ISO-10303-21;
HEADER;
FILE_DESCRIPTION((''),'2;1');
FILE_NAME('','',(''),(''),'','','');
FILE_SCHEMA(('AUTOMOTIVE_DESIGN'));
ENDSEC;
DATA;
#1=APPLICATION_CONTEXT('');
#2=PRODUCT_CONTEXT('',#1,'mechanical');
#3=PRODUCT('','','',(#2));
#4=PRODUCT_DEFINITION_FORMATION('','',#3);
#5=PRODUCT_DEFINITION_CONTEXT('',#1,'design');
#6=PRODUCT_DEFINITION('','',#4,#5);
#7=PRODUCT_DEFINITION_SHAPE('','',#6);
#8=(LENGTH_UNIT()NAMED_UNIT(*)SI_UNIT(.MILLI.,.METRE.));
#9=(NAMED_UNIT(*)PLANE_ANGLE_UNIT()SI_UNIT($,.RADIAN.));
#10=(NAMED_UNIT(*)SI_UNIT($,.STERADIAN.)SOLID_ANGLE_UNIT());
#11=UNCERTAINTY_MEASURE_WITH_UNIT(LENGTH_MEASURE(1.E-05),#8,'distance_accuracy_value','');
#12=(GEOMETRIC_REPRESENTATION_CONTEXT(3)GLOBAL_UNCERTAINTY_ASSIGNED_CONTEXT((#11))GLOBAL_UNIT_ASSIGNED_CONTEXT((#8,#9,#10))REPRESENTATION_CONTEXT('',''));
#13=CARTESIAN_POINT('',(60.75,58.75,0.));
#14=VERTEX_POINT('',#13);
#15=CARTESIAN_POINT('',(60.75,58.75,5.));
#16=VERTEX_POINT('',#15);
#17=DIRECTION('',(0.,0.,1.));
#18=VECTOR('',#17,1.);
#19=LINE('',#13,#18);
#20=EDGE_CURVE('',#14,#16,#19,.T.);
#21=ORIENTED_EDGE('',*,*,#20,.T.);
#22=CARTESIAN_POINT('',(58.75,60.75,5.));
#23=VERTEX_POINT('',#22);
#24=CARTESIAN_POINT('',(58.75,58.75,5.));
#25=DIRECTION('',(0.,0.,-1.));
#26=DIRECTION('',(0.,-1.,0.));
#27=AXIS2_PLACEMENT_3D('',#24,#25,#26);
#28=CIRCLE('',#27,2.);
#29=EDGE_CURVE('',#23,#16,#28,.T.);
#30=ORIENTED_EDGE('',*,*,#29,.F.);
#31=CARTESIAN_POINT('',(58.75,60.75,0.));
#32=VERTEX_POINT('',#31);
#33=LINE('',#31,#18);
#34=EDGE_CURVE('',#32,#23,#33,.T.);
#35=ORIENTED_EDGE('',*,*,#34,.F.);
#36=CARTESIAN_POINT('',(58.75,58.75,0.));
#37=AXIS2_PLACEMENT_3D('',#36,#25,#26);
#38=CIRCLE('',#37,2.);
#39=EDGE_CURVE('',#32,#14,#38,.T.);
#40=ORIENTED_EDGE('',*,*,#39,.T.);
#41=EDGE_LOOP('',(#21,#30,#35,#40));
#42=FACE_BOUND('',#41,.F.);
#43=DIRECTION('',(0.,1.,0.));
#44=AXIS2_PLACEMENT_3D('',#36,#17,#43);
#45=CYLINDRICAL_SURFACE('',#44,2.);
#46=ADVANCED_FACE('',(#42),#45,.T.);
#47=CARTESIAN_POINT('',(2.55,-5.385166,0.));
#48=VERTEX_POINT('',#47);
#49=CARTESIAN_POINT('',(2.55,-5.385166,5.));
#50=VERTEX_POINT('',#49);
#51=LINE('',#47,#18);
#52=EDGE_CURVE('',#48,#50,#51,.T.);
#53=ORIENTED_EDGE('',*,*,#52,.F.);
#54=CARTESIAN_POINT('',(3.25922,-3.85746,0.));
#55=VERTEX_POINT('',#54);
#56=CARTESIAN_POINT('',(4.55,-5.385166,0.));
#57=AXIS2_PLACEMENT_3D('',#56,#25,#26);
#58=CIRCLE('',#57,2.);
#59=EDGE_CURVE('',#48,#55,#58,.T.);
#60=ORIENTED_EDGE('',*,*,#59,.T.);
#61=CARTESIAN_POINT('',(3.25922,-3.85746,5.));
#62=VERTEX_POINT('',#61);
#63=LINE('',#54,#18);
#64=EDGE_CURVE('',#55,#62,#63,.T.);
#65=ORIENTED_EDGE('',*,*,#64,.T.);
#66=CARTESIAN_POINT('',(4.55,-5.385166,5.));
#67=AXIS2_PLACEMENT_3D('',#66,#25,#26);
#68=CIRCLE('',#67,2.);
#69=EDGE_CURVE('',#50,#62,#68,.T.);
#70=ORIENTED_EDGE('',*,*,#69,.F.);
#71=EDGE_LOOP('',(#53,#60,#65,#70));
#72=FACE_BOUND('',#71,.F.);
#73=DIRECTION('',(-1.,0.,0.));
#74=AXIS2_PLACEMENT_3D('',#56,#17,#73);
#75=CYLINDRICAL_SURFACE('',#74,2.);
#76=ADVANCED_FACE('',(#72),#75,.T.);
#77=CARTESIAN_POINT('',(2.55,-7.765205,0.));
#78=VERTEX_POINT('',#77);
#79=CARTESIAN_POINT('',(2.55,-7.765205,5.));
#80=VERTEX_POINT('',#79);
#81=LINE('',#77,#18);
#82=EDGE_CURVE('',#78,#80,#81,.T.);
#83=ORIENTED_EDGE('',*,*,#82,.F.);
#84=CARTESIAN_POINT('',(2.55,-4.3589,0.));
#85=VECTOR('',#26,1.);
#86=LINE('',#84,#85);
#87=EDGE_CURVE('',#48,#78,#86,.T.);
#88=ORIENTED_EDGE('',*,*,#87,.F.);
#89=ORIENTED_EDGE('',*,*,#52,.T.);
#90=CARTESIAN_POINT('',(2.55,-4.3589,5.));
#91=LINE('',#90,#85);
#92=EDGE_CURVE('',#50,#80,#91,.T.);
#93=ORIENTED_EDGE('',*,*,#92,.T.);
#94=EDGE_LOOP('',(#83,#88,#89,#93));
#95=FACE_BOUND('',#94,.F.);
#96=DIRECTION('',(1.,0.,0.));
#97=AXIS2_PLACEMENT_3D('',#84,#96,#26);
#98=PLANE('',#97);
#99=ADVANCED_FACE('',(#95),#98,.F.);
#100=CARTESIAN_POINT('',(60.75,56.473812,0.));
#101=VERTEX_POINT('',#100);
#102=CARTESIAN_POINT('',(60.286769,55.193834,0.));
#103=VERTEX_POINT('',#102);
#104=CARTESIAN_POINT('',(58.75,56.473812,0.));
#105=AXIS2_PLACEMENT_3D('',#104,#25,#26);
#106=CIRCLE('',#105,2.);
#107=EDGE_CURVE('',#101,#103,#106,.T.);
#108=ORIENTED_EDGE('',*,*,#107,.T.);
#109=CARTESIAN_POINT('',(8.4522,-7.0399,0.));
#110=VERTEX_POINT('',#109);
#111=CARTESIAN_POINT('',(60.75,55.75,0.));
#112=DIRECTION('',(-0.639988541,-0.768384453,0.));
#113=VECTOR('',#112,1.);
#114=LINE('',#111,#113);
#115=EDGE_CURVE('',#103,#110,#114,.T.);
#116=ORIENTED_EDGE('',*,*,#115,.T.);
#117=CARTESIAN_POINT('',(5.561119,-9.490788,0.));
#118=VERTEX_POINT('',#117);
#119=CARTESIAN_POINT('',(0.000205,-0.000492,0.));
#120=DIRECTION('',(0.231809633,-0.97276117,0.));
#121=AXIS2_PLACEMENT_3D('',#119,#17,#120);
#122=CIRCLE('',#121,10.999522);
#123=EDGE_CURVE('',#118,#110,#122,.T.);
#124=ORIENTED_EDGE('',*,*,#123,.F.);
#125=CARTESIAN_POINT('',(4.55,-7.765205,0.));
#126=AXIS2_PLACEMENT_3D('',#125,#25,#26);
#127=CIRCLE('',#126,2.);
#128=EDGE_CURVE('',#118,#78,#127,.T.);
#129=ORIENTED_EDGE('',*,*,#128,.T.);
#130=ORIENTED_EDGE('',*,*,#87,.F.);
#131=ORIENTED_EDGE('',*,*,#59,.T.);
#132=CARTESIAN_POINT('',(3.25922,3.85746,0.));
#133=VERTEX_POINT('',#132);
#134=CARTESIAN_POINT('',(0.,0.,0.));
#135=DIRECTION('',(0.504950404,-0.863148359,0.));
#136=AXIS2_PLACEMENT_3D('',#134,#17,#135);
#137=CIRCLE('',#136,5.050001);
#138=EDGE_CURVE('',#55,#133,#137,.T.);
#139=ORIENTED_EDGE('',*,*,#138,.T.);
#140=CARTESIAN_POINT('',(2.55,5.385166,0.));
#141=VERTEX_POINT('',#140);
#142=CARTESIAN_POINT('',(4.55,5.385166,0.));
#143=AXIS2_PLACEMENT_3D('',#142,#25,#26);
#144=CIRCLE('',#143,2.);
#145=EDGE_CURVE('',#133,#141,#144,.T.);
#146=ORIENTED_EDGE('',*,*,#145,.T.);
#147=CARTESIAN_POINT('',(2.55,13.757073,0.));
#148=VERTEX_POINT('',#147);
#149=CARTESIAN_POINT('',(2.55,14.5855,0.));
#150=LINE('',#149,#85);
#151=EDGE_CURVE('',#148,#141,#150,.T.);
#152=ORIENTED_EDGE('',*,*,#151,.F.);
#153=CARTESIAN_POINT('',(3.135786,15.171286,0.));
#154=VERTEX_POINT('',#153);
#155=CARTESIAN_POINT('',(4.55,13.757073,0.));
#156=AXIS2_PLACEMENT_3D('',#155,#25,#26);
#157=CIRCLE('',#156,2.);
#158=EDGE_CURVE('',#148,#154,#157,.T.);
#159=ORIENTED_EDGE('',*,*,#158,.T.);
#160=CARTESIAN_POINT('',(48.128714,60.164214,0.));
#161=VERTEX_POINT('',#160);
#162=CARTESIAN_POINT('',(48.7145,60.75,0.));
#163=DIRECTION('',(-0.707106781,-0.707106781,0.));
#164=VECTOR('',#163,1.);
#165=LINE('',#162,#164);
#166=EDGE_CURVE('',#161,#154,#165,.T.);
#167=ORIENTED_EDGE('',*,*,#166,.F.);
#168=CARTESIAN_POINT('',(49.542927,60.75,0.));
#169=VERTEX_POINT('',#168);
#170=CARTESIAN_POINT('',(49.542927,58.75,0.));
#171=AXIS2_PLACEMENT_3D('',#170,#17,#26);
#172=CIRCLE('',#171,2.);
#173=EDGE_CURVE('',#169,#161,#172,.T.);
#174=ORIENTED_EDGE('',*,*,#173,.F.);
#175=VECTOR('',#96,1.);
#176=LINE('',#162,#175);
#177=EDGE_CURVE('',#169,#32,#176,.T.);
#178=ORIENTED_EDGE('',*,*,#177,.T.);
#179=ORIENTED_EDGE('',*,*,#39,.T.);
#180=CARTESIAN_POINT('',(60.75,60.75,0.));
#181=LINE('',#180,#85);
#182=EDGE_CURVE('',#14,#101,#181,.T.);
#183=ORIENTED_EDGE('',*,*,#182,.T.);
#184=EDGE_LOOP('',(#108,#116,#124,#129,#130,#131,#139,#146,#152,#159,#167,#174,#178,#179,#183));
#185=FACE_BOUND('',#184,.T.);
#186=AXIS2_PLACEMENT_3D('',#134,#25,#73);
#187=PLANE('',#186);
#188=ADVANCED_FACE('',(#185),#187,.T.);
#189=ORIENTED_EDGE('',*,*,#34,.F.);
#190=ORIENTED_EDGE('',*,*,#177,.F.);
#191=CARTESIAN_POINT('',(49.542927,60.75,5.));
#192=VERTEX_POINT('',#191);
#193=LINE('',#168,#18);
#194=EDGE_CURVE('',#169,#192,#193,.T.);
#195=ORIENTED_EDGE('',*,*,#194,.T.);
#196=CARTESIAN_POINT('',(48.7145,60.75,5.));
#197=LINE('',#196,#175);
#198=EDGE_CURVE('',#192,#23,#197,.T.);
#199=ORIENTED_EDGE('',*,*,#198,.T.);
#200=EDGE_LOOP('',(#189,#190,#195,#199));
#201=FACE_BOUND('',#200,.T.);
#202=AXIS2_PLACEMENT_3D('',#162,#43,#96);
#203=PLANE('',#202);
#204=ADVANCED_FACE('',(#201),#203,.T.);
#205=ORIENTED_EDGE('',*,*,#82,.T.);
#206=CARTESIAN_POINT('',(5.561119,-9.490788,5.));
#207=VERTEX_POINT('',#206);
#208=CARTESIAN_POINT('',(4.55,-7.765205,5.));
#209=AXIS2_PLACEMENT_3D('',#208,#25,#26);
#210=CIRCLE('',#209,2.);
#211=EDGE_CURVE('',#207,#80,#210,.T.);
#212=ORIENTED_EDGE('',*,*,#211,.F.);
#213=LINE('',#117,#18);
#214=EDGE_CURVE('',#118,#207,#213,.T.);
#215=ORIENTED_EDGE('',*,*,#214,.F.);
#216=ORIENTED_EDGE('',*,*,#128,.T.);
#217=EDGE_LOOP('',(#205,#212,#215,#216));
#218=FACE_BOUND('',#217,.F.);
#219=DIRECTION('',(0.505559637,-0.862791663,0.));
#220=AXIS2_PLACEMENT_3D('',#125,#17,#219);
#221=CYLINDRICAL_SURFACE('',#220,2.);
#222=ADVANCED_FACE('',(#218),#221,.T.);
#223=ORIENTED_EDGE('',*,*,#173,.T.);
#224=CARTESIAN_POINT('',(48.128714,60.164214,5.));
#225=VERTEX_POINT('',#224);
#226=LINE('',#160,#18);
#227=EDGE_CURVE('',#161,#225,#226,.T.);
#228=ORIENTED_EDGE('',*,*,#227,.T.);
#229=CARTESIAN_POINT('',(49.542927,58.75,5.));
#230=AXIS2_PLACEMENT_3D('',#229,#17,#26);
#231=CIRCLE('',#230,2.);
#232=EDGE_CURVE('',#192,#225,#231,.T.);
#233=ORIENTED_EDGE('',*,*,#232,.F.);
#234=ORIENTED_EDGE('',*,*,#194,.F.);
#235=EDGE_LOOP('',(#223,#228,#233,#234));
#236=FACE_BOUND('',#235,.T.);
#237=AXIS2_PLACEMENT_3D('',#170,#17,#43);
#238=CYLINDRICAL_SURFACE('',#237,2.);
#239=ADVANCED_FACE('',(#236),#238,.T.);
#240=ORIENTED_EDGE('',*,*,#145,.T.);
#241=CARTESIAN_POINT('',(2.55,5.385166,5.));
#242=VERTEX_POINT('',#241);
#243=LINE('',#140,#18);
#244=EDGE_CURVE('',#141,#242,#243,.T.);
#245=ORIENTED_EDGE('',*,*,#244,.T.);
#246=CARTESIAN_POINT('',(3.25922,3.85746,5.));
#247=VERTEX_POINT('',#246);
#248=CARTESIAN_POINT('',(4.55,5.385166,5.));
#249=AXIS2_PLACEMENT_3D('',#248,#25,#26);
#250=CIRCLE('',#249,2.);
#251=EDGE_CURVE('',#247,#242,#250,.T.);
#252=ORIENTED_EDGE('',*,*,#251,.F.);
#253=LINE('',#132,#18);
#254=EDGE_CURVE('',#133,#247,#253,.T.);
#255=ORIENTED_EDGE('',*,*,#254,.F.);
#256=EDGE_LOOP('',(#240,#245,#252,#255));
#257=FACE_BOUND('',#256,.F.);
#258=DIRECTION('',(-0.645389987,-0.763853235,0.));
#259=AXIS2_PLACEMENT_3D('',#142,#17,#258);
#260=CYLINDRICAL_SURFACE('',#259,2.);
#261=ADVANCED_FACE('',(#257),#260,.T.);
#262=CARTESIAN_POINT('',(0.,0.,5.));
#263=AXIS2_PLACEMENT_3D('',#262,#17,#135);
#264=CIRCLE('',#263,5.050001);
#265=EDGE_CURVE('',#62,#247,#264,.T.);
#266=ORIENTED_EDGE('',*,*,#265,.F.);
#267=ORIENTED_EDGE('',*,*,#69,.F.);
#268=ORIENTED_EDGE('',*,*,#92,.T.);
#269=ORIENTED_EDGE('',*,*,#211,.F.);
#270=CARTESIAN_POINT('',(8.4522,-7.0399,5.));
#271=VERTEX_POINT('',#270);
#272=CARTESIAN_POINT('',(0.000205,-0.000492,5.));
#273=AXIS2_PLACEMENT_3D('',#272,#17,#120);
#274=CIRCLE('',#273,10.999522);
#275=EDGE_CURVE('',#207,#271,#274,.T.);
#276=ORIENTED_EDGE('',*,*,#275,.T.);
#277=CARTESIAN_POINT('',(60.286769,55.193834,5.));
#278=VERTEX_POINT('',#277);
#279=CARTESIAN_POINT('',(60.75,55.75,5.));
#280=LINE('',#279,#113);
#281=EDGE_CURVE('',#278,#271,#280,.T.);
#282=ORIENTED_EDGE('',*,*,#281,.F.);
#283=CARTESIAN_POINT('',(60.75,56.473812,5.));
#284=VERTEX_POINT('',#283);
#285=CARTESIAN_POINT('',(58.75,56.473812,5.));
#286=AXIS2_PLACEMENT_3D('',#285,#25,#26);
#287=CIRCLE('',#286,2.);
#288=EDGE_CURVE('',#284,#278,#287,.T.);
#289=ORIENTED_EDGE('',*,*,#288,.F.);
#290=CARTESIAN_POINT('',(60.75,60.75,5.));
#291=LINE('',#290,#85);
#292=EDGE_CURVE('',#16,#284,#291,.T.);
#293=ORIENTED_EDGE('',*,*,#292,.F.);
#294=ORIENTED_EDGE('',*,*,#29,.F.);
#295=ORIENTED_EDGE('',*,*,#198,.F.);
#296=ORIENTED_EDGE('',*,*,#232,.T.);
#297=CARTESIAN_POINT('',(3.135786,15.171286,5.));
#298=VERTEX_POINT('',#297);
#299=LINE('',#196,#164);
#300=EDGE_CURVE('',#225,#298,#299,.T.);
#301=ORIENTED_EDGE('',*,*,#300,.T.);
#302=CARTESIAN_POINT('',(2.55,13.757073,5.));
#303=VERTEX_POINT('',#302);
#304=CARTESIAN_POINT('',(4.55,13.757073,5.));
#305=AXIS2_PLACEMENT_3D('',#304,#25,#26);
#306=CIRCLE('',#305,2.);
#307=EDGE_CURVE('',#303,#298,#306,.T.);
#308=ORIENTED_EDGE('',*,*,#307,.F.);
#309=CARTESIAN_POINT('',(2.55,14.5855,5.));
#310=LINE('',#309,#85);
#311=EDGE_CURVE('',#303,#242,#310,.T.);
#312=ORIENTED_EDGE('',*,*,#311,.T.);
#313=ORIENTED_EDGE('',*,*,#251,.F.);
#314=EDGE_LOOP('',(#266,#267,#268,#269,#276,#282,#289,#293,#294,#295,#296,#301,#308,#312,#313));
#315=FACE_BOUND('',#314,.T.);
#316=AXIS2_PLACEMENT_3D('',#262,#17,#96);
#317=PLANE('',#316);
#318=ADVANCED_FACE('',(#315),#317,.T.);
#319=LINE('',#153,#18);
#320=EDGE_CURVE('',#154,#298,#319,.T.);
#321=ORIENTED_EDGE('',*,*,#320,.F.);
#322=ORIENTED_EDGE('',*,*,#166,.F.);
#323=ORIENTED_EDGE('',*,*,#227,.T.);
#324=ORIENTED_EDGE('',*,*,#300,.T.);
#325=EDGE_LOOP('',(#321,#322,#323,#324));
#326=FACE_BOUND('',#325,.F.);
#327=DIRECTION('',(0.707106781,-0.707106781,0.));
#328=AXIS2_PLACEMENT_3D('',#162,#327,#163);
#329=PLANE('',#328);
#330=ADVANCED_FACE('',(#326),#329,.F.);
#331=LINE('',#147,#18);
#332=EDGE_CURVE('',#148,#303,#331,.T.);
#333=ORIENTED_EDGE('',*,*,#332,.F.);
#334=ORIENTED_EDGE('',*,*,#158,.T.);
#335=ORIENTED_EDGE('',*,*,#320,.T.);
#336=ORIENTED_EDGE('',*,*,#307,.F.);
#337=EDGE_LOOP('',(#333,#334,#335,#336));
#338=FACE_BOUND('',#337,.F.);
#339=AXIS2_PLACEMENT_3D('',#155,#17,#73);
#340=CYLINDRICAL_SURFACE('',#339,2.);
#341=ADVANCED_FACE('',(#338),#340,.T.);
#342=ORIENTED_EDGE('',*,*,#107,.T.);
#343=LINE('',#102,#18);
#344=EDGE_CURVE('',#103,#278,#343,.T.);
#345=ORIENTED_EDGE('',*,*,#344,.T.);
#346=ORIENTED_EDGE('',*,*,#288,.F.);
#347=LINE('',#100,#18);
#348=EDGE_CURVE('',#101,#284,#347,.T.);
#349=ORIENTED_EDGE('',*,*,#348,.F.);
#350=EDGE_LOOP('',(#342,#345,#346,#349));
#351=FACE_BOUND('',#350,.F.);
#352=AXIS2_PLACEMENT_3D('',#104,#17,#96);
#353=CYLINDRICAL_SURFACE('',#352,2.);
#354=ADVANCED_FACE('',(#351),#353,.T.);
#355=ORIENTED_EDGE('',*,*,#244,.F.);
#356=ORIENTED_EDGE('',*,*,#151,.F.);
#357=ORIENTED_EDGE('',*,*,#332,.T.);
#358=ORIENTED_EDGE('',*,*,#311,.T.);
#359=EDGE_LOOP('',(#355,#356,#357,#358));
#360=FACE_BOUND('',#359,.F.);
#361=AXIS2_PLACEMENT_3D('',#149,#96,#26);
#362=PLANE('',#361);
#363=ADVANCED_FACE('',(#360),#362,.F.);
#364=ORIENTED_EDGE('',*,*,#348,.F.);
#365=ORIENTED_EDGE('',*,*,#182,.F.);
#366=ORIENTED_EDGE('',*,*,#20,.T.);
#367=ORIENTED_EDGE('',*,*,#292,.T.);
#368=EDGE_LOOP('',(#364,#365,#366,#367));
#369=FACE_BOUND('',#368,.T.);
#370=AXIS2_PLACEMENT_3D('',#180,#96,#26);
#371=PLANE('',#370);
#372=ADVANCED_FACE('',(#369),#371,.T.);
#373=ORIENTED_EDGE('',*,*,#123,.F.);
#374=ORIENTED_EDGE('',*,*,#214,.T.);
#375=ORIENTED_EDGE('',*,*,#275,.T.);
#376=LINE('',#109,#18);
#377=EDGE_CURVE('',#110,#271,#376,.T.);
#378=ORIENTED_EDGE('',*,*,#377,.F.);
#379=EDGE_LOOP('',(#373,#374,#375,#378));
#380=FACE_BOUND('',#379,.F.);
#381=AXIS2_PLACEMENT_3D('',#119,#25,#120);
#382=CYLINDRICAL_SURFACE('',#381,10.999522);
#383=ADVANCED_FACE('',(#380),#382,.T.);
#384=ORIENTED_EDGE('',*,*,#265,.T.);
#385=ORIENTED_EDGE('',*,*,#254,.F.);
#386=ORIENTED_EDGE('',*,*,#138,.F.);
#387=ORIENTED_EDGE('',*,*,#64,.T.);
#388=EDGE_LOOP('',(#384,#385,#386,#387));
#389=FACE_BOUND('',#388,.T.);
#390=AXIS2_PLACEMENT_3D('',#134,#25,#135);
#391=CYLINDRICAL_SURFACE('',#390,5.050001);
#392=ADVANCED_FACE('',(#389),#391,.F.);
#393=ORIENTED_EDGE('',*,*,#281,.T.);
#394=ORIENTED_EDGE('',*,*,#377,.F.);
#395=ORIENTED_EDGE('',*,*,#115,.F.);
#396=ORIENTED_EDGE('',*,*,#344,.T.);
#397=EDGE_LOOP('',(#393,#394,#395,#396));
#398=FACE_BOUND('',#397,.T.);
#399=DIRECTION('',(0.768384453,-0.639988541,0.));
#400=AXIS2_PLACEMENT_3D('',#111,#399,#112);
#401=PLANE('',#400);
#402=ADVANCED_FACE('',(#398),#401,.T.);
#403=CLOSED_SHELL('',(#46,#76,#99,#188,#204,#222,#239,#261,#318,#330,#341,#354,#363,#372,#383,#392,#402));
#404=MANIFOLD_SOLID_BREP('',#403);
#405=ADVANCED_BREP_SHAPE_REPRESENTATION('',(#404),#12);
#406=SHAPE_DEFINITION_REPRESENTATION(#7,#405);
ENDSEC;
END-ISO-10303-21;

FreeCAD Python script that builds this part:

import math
import FreeCAD as App
import Part
import Sketcher
Q = App.Units.Quantity


def edges_at(feature, points):
    """Names of the edges that pass closest to the given points."""
    edges = feature.Shape.Edges
    near = lambda p: min(range(len(edges)), key=lambda i: edges[i].distToShape(Part.Vertex(*p))[0])
    return sorted({f"Edge{near(p) + 1}" for p in points})

doc = App.newDocument("Part")
params = doc.addObject("Spreadsheet::Sheet", "Params")
for row, (alias, value) in enumerate([
    ("sketch1_diameter", "2.7 mm"),
    ("sketch1_height", "5 mm"),
    ("sketch1_radius", "5.05 mm"),
    ("sketch1_radius2", "11 mm"),
    ("pad1_length", "5 mm"),
    ("fillet_radius", "2 mm"),
    ("sketch2_diameter", "2.7 mm"),
    ("pad2_length", "5 mm"),
], start=1):
    params.set(f"A{row}", alias)
    params.set(f"B{row}", "=" + value)
    params.setAlias(f"B{row}", alias)

body = doc.addObject("PartDesign::Body", "Body")

sketch1 = body.newObject("Sketcher::SketchObject", "Sketch")
sketch1.AttachmentSupport = (doc.getObject("XY_Plane"), [""])
sketch1.MapMode = "FlatFace"
sketch1.addGeometry(Part.LineSegment(App.Vector(60.75, 60.75, 0), App.Vector(48.7145, 60.75, 0)), False)
sketch1.addGeometry(Part.LineSegment(App.Vector(48.7145, 60.75, 0), App.Vector(2.55, 14.5855, 0)), False)
sketch1.addGeometry(Part.LineSegment(App.Vector(2.55, 14.5855, 0), App.Vector(2.55, 4.3589, 0)), False)
sketch1.addGeometry(Part.ArcOfCircle(Part.Circle(App.Vector(0, 0, 0), App.Vector(0, 0, 1), 5.050001), math.radians(-59.67194), math.radians(59.67194)), False)
sketch1.addGeometry(Part.LineSegment(App.Vector(2.55, -4.3589, 0), App.Vector(2.55, -10.7004, 0)), False)
sketch1.addGeometry(Part.ArcOfCircle(Part.Circle(App.Vector(0, 0, 0), App.Vector(0, 0, 1), 11), math.radians(-76.59592), math.radians(-39.791166)), False)
sketch1.addGeometry(Part.LineSegment(App.Vector(8.4522, -7.0399, 0), App.Vector(60.75, 55.75, 0)), False)
sketch1.addGeometry(Part.LineSegment(App.Vector(60.75, 55.75, 0), App.Vector(60.75, 60.75, 0)), False)
sketch1.addGeometry(Part.Circle(App.Vector(8.5, 0, 0), App.Vector(0, 0, 1), 1.35), False)
sketch1.addConstraint(Sketcher.Constraint("Coincident", 0, 2, 1, 1))
sketch1.addConstraint(Sketcher.Constraint("Coincident", 1, 2, 2, 1))
sketch1.addConstraint(Sketcher.Constraint("Coincident", 2, 2, 3, 2))
sketch1.addConstraint(Sketcher.Constraint("Coincident", 3, 1, 4, 1))
sketch1.addConstraint(Sketcher.Constraint("Coincident", 4, 2, 5, 1))
sketch1.addConstraint(Sketcher.Constraint("Tangent", 5, 2, 6, 1))
sketch1.addConstraint(Sketcher.Constraint("Coincident", 6, 2, 7, 1))
sketch1.addConstraint(Sketcher.Constraint("Coincident", 7, 2, 0, 1))
sketch1.addConstraint(Sketcher.Constraint("Horizontal", 0))
sketch1.addConstraint(Sketcher.Constraint("Vertical", 2))
sketch1.addConstraint(Sketcher.Constraint("Vertical", 4))
sketch1.addConstraint(Sketcher.Constraint("Vertical", 7))
sketch1.addConstraint(Sketcher.Constraint("Coincident", 3, 3, -1, 1))
sketch1.addConstraint(Sketcher.Constraint("Coincident", 5, 3, -1, 1))
sketch1.addConstraint(Sketcher.Constraint("PointOnObject", 8, 3, -1))
sketch1.addConstraint(Sketcher.Constraint("Vertical", 2, 2, 3, 1))
sketch1.addConstraint(Sketcher.Constraint("Diameter", 8, Q("2.7 mm")))
sketch1.addConstraint(Sketcher.Constraint("DistanceY", 7, 1, 7, 2, Q("5 mm")))
sketch1.addConstraint(Sketcher.Constraint("Radius", 3, Q("5.05 mm")))
sketch1.addConstraint(Sketcher.Constraint("Radius", 5, Q("11 mm")))
sketch1.addConstraint(Sketcher.Constraint("DistanceX", -1, 1, 8, 3, Q("8.5 mm")))
sketch1.addConstraint(Sketcher.Constraint("DistanceY", -1, 1, 0, 2, Q("60.75 mm")))
sketch1.addConstraint(Sketcher.Constraint("DistanceX", -1, 1, 1, 2, Q("2.55 mm")))
sketch1.addConstraint(Sketcher.Constraint("DistanceX", -1, 1, 6, 2, Q("60.75 mm")))
sketch1.addConstraint(Sketcher.Constraint("Angle", 1, Q("-135 deg")))
sketch1.addConstraint(Sketcher.Constraint("DistanceX", 0, 2, 0, 1, Q("12.0355 mm")))
sketch1.setExpression("Constraints[16]", "Params.sketch1_diameter")
sketch1.setExpression("Constraints[17]", "Params.sketch1_height")
sketch1.setExpression("Constraints[18]", "Params.sketch1_radius")
sketch1.setExpression("Constraints[19]", "Params.sketch1_radius2")
pad1 = body.newObject("PartDesign::Pad", "Pad")
pad1.Profile = sketch1
pad1.setExpression("Length", "Params.pad1_length")
doc.recompute()

fillet = body.newObject("PartDesign::Fillet", "Fillet")
fillet.Base = (pad1, edges_at(pad1, [
    (2.55, -10.7, 2.5),
    (2.55, -4.359, 2.5),
    (2.55, 14.585, 2.5),
    (60.75, 60.75, 2.5),
    (60.75, 55.75, 2.5),
    (48.715, 60.75, 2.5),
    (2.55, 4.359, 2.5),
]))
fillet.setExpression("Radius", "Params.fillet_radius")

sketch2 = body.newObject("Sketcher::SketchObject", "Sketch001")
sketch2.AttachmentSupport = (doc.getObject("XY_Plane"), [""])
sketch2.MapMode = "FlatFace"
sketch2.addGeometry(Part.Circle(App.Vector(8.5, 0, 0), App.Vector(0, 0, 1), 1.35), False)
sketch2.addConstraint(Sketcher.Constraint("PointOnObject", 0, 3, -1))
sketch2.addConstraint(Sketcher.Constraint("Diameter", 0, Q("2.7 mm")))
sketch2.addConstraint(Sketcher.Constraint("DistanceX", -1, 1, 0, 3, Q("8.5 mm")))
sketch2.setExpression("Constraints[1]", "Params.sketch2_diameter")
pad2 = body.newObject("PartDesign::Pad", "Pad001")
pad2.Profile = sketch2
pad2.setExpression("Length", "Params.pad2_length")

doc.recompute()
